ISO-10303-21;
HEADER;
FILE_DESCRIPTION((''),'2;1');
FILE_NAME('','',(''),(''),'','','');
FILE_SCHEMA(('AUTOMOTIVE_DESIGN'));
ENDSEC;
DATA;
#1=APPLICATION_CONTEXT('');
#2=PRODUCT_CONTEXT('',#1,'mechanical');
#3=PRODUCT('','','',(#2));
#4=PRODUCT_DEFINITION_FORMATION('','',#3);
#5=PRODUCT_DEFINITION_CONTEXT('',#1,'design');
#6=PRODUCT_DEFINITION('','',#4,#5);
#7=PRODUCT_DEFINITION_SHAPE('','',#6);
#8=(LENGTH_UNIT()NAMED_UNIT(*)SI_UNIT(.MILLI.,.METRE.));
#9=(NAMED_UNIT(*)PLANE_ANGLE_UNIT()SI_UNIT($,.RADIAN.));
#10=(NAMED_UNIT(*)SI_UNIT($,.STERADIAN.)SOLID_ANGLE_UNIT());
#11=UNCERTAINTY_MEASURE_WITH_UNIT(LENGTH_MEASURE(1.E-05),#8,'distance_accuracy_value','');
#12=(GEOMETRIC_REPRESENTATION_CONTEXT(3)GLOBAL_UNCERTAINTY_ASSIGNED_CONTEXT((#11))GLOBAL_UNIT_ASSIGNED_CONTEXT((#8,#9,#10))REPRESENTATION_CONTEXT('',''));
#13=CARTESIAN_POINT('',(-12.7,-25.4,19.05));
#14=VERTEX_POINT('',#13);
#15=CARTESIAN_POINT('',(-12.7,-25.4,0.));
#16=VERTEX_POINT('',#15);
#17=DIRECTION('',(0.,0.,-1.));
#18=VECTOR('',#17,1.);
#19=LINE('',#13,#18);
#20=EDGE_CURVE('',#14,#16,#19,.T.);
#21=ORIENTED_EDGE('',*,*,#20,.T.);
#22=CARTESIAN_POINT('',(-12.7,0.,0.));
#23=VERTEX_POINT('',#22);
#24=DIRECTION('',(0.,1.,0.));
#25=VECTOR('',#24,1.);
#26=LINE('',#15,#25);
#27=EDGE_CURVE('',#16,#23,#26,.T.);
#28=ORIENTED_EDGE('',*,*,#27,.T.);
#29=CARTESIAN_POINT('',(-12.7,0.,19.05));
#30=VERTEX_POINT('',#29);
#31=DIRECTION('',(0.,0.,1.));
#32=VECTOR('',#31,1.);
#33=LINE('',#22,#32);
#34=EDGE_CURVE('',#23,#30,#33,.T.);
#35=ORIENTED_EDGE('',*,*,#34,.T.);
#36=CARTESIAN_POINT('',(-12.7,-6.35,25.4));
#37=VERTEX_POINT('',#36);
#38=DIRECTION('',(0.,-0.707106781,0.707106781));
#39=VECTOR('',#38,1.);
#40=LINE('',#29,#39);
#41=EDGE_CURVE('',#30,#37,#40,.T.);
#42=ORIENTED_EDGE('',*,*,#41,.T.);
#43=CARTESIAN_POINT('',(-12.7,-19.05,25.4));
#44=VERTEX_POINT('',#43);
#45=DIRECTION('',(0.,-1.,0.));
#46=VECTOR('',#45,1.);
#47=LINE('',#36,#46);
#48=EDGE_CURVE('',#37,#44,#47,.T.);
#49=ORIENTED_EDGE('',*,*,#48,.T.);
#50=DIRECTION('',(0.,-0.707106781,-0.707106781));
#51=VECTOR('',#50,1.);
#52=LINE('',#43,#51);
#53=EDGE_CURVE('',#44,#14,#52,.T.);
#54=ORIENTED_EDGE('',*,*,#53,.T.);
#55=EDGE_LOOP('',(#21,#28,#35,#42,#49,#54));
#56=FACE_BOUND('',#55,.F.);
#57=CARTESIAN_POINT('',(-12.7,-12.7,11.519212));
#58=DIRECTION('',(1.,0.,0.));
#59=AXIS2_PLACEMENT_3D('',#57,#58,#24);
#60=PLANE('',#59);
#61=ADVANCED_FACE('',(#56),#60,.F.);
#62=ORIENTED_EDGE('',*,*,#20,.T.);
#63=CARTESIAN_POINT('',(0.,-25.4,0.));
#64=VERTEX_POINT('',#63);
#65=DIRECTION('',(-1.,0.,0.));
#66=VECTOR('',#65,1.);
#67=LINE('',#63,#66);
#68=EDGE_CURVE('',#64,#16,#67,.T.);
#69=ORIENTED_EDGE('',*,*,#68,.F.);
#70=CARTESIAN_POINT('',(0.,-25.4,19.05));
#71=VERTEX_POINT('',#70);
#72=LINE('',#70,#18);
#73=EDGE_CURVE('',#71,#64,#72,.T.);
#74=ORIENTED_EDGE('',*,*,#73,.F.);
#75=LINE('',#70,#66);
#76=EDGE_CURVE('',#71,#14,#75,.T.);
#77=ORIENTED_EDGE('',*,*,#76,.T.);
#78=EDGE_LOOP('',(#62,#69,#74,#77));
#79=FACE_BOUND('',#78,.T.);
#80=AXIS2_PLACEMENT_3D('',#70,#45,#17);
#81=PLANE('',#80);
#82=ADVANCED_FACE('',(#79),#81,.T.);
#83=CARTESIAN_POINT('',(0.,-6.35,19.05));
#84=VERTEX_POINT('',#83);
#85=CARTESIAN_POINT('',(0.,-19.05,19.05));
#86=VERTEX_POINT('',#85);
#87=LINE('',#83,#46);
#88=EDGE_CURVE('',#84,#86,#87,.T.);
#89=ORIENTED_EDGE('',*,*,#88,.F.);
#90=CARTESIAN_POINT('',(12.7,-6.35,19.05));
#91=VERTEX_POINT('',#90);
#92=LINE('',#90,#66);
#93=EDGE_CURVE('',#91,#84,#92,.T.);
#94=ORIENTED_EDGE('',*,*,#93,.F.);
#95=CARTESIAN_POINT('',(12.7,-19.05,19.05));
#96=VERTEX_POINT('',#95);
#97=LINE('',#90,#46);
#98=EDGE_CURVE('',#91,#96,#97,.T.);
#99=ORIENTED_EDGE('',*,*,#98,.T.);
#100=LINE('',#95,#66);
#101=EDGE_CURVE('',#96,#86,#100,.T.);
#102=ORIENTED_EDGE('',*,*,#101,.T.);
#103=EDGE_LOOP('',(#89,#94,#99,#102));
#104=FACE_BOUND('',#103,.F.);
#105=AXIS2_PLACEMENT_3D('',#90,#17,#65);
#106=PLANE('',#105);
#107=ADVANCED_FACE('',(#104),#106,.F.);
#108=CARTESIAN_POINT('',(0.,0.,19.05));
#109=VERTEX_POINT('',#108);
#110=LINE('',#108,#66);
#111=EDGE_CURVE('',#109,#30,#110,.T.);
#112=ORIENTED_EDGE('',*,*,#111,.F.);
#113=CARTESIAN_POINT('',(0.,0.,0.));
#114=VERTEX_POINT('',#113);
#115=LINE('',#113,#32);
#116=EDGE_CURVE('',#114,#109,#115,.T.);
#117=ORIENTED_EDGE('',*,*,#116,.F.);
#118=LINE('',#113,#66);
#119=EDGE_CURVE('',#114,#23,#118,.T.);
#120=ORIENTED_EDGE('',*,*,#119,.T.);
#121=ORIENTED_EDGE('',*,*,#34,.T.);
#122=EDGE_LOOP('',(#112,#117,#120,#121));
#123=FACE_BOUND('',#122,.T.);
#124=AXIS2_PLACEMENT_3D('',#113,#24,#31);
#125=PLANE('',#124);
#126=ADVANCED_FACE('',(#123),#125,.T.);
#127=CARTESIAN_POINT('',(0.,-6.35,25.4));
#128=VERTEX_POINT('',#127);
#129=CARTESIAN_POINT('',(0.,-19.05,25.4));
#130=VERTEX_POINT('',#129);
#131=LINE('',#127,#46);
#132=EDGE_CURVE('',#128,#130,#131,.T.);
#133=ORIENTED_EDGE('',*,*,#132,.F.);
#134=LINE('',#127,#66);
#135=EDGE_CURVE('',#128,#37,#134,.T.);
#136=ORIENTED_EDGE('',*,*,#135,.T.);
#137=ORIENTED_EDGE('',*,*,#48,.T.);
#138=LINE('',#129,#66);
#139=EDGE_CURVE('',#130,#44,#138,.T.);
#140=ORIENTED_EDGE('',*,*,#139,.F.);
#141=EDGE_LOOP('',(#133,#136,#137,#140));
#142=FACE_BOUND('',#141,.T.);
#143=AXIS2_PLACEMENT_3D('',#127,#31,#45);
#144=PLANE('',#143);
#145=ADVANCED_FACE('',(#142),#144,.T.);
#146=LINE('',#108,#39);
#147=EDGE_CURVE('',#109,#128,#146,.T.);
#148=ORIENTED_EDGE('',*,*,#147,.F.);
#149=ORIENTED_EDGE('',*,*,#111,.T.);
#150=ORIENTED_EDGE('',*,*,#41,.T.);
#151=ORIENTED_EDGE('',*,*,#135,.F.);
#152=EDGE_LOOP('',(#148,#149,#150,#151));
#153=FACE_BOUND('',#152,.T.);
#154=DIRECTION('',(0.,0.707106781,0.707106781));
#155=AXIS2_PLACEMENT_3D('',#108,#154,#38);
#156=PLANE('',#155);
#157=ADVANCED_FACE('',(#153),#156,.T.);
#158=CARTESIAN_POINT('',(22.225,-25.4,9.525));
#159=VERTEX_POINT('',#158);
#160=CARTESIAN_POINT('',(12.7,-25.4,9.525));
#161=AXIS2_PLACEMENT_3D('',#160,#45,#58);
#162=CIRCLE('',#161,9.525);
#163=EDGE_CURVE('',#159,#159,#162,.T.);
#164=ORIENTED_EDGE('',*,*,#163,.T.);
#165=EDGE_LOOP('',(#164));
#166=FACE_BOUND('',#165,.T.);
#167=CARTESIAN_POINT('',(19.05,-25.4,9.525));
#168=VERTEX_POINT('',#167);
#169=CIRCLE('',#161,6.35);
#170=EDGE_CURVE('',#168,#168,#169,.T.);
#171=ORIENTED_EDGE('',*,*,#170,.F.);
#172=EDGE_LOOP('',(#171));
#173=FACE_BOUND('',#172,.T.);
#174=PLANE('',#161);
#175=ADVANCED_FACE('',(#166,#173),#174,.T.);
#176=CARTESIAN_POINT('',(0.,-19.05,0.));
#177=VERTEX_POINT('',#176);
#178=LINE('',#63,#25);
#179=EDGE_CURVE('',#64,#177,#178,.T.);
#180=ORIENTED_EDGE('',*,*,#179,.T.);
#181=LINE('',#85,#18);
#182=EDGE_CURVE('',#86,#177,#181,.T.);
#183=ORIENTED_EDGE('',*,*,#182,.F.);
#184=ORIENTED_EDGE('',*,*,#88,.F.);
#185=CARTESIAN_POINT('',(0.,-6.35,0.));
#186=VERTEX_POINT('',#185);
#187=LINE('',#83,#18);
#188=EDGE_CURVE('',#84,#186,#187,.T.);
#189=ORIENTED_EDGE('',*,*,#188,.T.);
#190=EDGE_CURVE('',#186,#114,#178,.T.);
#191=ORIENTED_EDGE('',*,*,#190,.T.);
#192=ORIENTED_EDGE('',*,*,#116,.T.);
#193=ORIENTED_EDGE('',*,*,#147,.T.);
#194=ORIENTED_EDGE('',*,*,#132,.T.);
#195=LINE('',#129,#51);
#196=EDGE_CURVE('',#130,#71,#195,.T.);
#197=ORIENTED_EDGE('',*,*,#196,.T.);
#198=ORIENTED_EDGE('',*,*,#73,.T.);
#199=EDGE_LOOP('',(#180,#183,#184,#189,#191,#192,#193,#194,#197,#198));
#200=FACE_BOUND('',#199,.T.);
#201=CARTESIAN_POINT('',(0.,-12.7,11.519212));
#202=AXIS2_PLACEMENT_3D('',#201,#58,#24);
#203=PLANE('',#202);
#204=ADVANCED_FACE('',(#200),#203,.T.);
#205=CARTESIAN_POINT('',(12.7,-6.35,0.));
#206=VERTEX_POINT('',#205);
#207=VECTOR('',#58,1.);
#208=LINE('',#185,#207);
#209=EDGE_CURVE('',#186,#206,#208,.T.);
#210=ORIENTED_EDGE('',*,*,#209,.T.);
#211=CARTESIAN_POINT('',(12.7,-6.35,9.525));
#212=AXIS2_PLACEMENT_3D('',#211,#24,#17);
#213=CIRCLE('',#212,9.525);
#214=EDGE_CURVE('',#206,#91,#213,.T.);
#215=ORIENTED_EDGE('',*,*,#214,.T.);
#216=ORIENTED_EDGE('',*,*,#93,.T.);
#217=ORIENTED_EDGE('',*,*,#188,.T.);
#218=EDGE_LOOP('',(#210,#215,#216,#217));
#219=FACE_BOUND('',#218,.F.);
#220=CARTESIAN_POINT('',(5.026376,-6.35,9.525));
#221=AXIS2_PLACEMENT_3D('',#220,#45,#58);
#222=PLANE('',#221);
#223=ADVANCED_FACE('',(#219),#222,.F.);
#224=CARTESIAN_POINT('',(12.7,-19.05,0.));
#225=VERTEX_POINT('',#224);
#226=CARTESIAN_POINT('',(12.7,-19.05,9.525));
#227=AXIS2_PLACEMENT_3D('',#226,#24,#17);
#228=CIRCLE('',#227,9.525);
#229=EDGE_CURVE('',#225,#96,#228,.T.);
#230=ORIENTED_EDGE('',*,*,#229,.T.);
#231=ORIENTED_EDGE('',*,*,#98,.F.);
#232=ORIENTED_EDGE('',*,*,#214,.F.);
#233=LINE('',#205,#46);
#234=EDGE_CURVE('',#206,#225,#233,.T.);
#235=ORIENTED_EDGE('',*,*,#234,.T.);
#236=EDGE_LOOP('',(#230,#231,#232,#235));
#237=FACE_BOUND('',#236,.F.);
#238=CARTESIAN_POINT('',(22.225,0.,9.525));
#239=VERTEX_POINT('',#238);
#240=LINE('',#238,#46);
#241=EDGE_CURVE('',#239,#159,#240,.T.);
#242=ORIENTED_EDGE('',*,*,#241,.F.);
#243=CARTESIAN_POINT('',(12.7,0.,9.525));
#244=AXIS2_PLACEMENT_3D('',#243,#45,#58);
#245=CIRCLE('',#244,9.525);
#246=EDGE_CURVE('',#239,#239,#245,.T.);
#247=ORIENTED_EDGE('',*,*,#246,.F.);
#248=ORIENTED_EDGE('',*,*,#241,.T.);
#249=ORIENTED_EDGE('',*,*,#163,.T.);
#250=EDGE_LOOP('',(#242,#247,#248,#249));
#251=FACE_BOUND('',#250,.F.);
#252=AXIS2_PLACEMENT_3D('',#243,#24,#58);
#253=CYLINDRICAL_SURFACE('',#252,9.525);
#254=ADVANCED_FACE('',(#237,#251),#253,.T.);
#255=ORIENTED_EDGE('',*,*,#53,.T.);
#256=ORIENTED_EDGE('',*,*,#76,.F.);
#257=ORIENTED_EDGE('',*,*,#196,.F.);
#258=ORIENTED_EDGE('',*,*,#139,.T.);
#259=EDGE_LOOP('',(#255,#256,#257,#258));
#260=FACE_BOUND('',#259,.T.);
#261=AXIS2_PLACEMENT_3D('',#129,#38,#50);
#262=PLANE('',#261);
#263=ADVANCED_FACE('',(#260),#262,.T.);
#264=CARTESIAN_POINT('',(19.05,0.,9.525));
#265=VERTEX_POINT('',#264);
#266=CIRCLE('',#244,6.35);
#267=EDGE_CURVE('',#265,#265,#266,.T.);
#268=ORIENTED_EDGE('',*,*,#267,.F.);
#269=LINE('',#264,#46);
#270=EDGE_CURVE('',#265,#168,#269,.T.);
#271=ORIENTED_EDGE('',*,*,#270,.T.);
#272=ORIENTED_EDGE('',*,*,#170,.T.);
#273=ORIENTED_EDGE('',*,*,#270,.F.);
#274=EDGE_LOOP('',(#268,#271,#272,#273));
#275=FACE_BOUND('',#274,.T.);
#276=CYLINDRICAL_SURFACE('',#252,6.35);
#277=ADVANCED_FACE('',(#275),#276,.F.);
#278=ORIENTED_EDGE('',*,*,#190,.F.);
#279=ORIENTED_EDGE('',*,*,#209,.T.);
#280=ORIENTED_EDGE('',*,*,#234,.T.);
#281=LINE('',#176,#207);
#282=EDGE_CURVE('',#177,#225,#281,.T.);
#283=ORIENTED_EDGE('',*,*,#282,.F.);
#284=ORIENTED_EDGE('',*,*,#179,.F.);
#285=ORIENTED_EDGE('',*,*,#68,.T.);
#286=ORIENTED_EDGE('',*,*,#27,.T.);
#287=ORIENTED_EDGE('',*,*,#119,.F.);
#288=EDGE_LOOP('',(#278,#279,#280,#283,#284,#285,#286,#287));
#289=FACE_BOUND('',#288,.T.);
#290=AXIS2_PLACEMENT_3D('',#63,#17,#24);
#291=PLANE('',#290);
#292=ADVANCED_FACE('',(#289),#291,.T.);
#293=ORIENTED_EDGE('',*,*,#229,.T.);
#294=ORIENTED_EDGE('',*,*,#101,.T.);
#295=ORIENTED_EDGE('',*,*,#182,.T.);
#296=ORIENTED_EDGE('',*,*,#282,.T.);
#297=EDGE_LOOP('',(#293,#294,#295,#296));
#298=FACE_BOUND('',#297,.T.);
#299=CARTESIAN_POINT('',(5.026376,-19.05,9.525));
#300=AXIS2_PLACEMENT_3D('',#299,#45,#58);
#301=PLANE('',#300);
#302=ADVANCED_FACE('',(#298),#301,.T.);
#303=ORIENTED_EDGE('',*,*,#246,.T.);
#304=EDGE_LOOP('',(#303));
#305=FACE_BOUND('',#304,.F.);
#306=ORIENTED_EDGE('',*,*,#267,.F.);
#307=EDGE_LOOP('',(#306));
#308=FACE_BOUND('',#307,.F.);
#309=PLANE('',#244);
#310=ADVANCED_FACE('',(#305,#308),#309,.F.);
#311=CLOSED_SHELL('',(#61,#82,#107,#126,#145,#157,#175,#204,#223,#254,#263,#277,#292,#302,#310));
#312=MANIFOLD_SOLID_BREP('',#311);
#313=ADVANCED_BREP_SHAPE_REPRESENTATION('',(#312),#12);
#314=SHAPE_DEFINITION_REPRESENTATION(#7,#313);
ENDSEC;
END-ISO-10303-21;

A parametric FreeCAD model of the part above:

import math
import FreeCAD as App
import Part
import Sketcher
from FreeCAD import Vector
Q = App.Units.Quantity


def add_polygon(sketch, points):
    """Adds a closed chain of lines whose ends are joined by coincident constraints."""
    first, n = sketch.GeometryCount, len(points)
    for a, b in zip(points, points[1:] + points[:1]):
        sketch.addGeometry(Part.LineSegment(App.Vector(*a, 0), App.Vector(*b, 0)), False)
    for i in range(n):
        sketch.addConstraint(Sketcher.Constraint("Coincident", first + i, 2, first + (i + 1) % n, 1))

doc = App.newDocument("Part")
body = doc.addObject("PartDesign::Body", "Body")

# Sketch on YZ plane
sketch1 = doc.addObject("Sketcher::SketchObject", "Sketch")
body.addObject(sketch1)
sketch1.AttachmentSupport = (doc.YZ_Plane, [""])
sketch1.MapMode = "FlatFace"
add_polygon(sketch1, [(-25, 0), (0, 0), (0, 19), (-6, 25), (-19, 25), (-25, 19)])  # lines 0-5
sketch1.addConstraint(Sketcher.Constraint("Horizontal", 0))
sketch1.addConstraint(Sketcher.Constraint("Vertical", 1))
sketch1.addConstraint(Sketcher.Constraint("Horizontal", 3))
sketch1.addConstraint(Sketcher.Constraint("Vertical", 5))
sketch1.addConstraint(Sketcher.Constraint("Coincident", 0, 2, -1, 1))
sketch1.addConstraint(Sketcher.Constraint("Perpendicular", 2, 4))
sketch1.addConstraint(Sketcher.Constraint("Horizontal", 1, 2, 4, 2))
sketch1.addConstraint(Sketcher.Constraint("Equal", 2, 4))
sketch1.addConstraint(Sketcher.Constraint("DistanceX", 0, 1, 0, 2, Q("1 in")))
sketch1.addConstraint(Sketcher.Constraint("DistanceX", 3, 2, 3, 1, Q("0.5 in")))
sketch1.addConstraint(Sketcher.Constraint("DistanceY", -1, 1, 2, 2, Q("1 in")))
pad1 = doc.addObject("PartDesign::Pad", "Pad")
body.addObject(pad1)
pad1.Profile = sketch1
pad1.Length = Q("0.5 in")
pad1.Reversed = True

# Sketch on XZ plane
sketch2 = doc.addObject("Sketcher::SketchObject", "Sketch001")
body.addObject(sketch2)
sketch2.AttachmentSupport = (doc.XZ_Plane, [""])
sketch2.MapMode = "FlatFace"
sketch2.AttachmentOffset = App.Placement(Vector(0, 0, 0.25 * 25.4), App.Rotation())
sketch2.addGeometry(Part.LineSegment(Vector(0, 19, 0), Vector(0, 0, 0)), False)
sketch2.addGeometry(Part.LineSegment(Vector(0, 0, 0), Vector(13, 0, 0)), False)
sketch2.addGeometry(Part.ArcOfCircle(Part.Circle(Vector(13, 10, 0), Vector(0, 0, 1), 10), math.radians(90), math.radians(270)), False)
sketch2.addGeometry(Part.LineSegment(Vector(13, 19, 0), Vector(0, 19, 0)), False)
sketch2.addConstraint(Sketcher.Constraint("Coincident", 0, 2, 1, 1))
sketch2.addConstraint(Sketcher.Constraint("Tangent", 1, 2, 2, 2))
sketch2.addConstraint(Sketcher.Constraint("Tangent", 2, 1, 3, 1))
sketch2.addConstraint(Sketcher.Constraint("Coincident", 3, 2, 0, 1))
sketch2.addConstraint(Sketcher.Constraint("Vertical", 0))
sketch2.addConstraint(Sketcher.Constraint("Horizontal", 1))
sketch2.addConstraint(Sketcher.Constraint("Horizontal", 3))
sketch2.addConstraint(Sketcher.Constraint("Coincident", 0, 2, -1, 1))
sketch2.addConstraint(Sketcher.Constraint("DistanceX", 1, 1, 1, 2, Q("0.5 in")))
sketch2.addConstraint(Sketcher.Constraint("Radius", 2, Q("0.375 in")))
pad2 = doc.addObject("PartDesign::Pad", "Pad001")
body.addObject(pad2)
pad2.Profile = sketch2
pad2.Length = Q("0.5 in")

# Sketch on XZ plane
sketch3 = doc.addObject("Sketcher::SketchObject", "Sketch002")
body.addObject(sketch3)
sketch3.AttachmentSupport = (doc.XZ_Plane, [""])
sketch3.MapMode = "FlatFace"
sketch3.addGeometry(Part.Circle(Vector(13, 10, 0), Vector(0, 0, 1), 10), False)
sketch3.addGeometry(Part.Circle(Vector(13, 10, 0), Vector(0, 0, 1), 6), False)
sketch3.addConstraint(Sketcher.Constraint("Coincident", 1, 3, 0, 3))
sketch3.addConstraint(Sketcher.Constraint("Diameter", 1, Q("0.5 in")))
sketch3.addConstraint(Sketcher.Constraint("Diameter", 0, Q("0.75 in")))
sketch3.addConstraint(Sketcher.Constraint("DistanceX", -1, 1, 0, 3, Q("0.5 in")))
sketch3.addConstraint(Sketcher.Constraint("DistanceY", -1, 1, 0, 3, Q("0.375 in")))
pad3 = doc.addObject("PartDesign::Pad", "Pad002")
body.addObject(pad3)
pad3.Profile = sketch3
pad3.Length = Q("1 in")

doc.recompute()
